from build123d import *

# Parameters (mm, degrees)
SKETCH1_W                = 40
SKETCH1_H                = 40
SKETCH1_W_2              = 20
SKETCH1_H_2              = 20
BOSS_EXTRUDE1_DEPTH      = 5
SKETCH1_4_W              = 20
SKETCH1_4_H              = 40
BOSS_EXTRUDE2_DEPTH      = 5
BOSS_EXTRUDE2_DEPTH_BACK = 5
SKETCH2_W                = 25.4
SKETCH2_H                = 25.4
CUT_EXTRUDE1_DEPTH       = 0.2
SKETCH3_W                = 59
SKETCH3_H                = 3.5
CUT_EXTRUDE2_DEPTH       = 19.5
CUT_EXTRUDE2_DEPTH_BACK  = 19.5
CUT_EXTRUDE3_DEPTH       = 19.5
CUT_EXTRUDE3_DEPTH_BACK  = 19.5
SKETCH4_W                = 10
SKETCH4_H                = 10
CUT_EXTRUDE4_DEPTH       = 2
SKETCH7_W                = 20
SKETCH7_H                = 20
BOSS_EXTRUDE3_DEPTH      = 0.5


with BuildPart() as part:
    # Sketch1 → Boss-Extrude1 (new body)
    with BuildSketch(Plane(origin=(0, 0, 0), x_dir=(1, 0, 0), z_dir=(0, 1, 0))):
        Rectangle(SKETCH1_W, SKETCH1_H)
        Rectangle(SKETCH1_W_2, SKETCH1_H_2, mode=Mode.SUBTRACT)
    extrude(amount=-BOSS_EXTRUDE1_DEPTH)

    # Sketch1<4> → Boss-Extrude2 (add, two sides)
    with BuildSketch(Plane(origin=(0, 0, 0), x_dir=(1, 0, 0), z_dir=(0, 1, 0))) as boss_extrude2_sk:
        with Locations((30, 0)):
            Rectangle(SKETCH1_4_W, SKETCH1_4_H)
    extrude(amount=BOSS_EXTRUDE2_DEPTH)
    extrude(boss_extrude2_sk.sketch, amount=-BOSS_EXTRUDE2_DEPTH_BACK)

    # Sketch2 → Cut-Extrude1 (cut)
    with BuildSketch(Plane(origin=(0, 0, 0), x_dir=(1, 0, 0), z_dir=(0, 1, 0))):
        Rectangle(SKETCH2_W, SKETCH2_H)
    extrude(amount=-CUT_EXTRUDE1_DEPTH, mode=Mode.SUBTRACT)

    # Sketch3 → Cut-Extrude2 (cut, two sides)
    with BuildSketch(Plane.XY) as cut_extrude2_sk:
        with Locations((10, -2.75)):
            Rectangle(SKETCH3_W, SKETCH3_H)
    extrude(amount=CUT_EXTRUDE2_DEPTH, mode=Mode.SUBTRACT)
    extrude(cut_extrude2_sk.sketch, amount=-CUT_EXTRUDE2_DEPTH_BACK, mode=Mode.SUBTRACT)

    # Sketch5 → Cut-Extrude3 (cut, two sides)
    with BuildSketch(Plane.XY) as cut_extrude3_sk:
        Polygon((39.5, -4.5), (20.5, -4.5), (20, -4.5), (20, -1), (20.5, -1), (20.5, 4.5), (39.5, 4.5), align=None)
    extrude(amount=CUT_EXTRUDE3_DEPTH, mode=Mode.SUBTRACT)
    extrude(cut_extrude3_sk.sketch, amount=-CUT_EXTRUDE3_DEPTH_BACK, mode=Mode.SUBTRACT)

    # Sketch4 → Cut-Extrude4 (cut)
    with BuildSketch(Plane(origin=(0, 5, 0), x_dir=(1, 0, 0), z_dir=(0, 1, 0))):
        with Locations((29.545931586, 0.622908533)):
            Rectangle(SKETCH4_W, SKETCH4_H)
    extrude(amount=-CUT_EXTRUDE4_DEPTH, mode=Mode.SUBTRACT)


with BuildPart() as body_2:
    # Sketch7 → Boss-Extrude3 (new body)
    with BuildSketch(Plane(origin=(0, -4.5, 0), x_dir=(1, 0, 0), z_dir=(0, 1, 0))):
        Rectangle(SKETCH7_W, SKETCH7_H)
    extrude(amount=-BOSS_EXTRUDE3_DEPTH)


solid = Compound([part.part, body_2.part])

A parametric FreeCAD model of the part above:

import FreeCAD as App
import Part
import Sketcher


def add_polygon(sketch, points):
    """Adds a closed chain of lines whose ends are joined by coincident constraints."""
    first, n = sketch.GeometryCount, len(points)
    for a, b in zip(points, points[1:] + points[:1]):
        sketch.addGeometry(Part.LineSegment(App.Vector(*a, 0), App.Vector(*b, 0)), False)
    for i in range(n):
        sketch.addConstraint(Sketcher.Constraint("Coincident", first + i, 2, first + (i + 1) % n, 1))

doc = App.newDocument("Part")
body = doc.addObject("PartDesign::Body", "Body")

sketch1 = body.newObject("Sketcher::SketchObject", "Sketch")
sketch1.AttachmentSupport = (doc.getObject("XZ_Plane"), [""])
sketch1.MapMode = "FlatFace"
add_polygon(sketch1, [(-20, -20), (-20, 20), (20, 20), (20, -20)])
add_polygon(sketch1, [(10, 10), (-10, 10), (-10, -10), (10, -10)])
sketch1.addConstraint(Sketcher.Constraint("Vertical", 0))
sketch1.addConstraint(Sketcher.Constraint("Horizontal", 1))
sketch1.addConstraint(Sketcher.Constraint("Vertical", 2))
sketch1.addConstraint(Sketcher.Constraint("Horizontal", 3))
sketch1.addConstraint(Sketcher.Constraint("Horizontal", 4))
sketch1.addConstraint(Sketcher.Constraint("Vertical", 5))
sketch1.addConstraint(Sketcher.Constraint("Horizontal", 6))
sketch1.addConstraint(Sketcher.Constraint("Vertical", 7))
sketch1.addConstraint(Sketcher.Constraint("Symmetric", 0, 2, 2, 2, -1, 1))
sketch1.addConstraint(Sketcher.Constraint("Symmetric", 4, 2, 6, 2, -1, 1))
sketch1.addConstraint(Sketcher.Constraint("Equal", 3, 0))
sketch1.addConstraint(Sketcher.Constraint("Equal", 6, 5))
sketch1.addConstraint(Sketcher.Constraint("DistanceX", 1, 1, 1, 2, 40.0))
sketch1.addConstraint(Sketcher.Constraint("DistanceX", 4, 2, 4, 1, 20.0))
pad1 = body.newObject("PartDesign::Pad", "Pad")
pad1.Profile = sketch1
pad1.Length = 5

sketch2 = body.newObject("Sketcher::SketchObject", "Sketch001")
sketch2.AttachmentSupport = (doc.getObject("XZ_Plane"), [""])
sketch2.MapMode = "FlatFace"
add_polygon(sketch2, [(20, -20), (20, 20), (40, 20), (40, -20)])
sketch2.addConstraint(Sketcher.Constraint("Vertical", 0))
sketch2.addConstraint(Sketcher.Constraint("Horizontal", 1))
sketch2.addConstraint(Sketcher.Constraint("Vertical", 2))
sketch2.addConstraint(Sketcher.Constraint("Horizontal", 3))
sketch2.addConstraint(Sketcher.Constraint("DistanceX", 1, 1, 1, 2, 20.0))
sketch2.addConstraint(Sketcher.Constraint("DistanceY", 0, 1, 0, 2, 40.0))
sketch2.addConstraint(Sketcher.Constraint("DistanceX", -1, 1, 0, 2, 20.0))
sketch2.addConstraint(Sketcher.Constraint("DistanceY", -1, 1, 0, 2, 20.0))
pad2 = body.newObject("PartDesign::Pad", "Pad001")
pad2.Profile = sketch2
pad2.Type = "TwoLengths"
pad2.Length = 5
pad2.Length2 = 5
pad2.Reversed = True

sketch3 = body.newObject("Sketcher::SketchObject", "Sketch002")
sketch3.AttachmentSupport = (doc.getObject("XZ_Plane"), [""])
sketch3.MapMode = "FlatFace"
add_polygon(sketch3, [(-12.7, -12.7), (-12.7, 12.7), (12.7, 12.7), (12.7, -12.7)])
sketch3.addConstraint(Sketcher.Constraint("Vertical", 0))
sketch3.addConstraint(Sketcher.Constraint("Horizontal", 1))
sketch3.addConstraint(Sketcher.Constraint("Vertical", 2))
sketch3.addConstraint(Sketcher.Constraint("Horizontal", 3))
sketch3.addConstraint(Sketcher.Constraint("Symmetric", 0, 2, 2, 2, -1, 1))
sketch3.addConstraint(Sketcher.Constraint("Equal", 3, 0))
sketch3.addConstraint(Sketcher.Constraint("DistanceX", 1, 1, 1, 2, 25.4))
pocket1 = body.newObject("PartDesign::Pocket", "Pocket")
pocket1.Profile = sketch3
pocket1.Length = 0.2
pocket1.Reversed = True

sketch4 = body.newObject("Sketcher::SketchObject", "Sketch003")
sketch4.AttachmentSupport = (doc.getObject("XY_Plane"), [""])
sketch4.MapMode = "FlatFace"
add_polygon(sketch4, [(-19.5, -1), (-19.5, -4.5), (39.5, -4.5), (39.5, -1)])
sketch4.addConstraint(Sketcher.Constraint("Vertical", 0))
sketch4.addConstraint(Sketcher.Constraint("Horizontal", 1))
sketch4.addConstraint(Sketcher.Constraint("Vertical", 2))
sketch4.addConstraint(Sketcher.Constraint("Horizontal", 3))
sketch4.addConstraint(Sketcher.Constraint("DistanceX", 1, 1, 1, 2, 59.0))
sketch4.addConstraint(Sketcher.Constraint("DistanceY", 0, 2, 0, 1, 3.5))
sketch4.addConstraint(Sketcher.Constraint("DistanceY", 2, 2, -1, 1, 1.0))
sketch4.addConstraint(Sketcher.Constraint("DistanceX", 0, 2, -1, 1, 19.5))
pocket2 = body.newObject("PartDesign::Pocket", "Pocket001")
pocket2.Profile = sketch4
pocket2.Type = "TwoLengths"
pocket2.Length = 19.5
pocket2.Length2 = 19.5
pocket2.Reversed = True

sketch5 = body.newObject("Sketcher::SketchObject", "Sketch004")
sketch5.AttachmentSupport = (doc.getObject("XY_Plane"), [""])
sketch5.MapMode = "FlatFace"
add_polygon(sketch5, [(20, -4.5), (39.5, -4.5), (39.5, 4.5), (20.5, 4.5), (20.5, -1), (20, -1)])
sketch5.addConstraint(Sketcher.Constraint("Horizontal", 0))
sketch5.addConstraint(Sketcher.Constraint("Vertical", 1))
sketch5.addConstraint(Sketcher.Constraint("Horizontal", 2))
sketch5.addConstraint(Sketcher.Constraint("Vertical", 3))
sketch5.addConstraint(Sketcher.Constraint("Horizontal", 4))
sketch5.addConstraint(Sketcher.Constraint("Vertical", 5))
sketch5.addConstraint(Sketcher.Constraint("DistanceX", 2, 2, 2, 1, 19.0))
sketch5.addConstraint(Sketcher.Constraint("DistanceY", 1, 1, 1, 2, 9.0))
sketch5.addConstraint(Sketcher.Constraint("DistanceX", 0, 1, 0, 2, 19.5))
sketch5.addConstraint(Sketcher.Constraint("DistanceY", 3, 2, 3, 1, 5.5))
sketch5.addConstraint(Sketcher.Constraint("DistanceY", 3, 2, -1, 1, 1.0))
sketch5.addConstraint(Sketcher.Constraint("DistanceX", -1, 1, 4, 2, 20.0))
pocket3 = body.newObject("PartDesign::Pocket", "Pocket002")
pocket3.Profile = sketch5
pocket3.Type = "TwoLengths"
pocket3.Length = 19.5
pocket3.Length2 = 19.5
pocket3.Reversed = True

sketch6 = body.newObject("Sketcher::SketchObject", "Sketch005")
sketch6.AttachmentSupport = (doc.getObject("XZ_Plane"), [""])
sketch6.MapMode = "FlatFace"
sketch6.AttachmentOffset = App.Placement(App.Vector(0, 0, -5), App.Rotation())
add_polygon(sketch6, [(24.545932, -5.622909), (24.545932, 4.377091), (34.545932, 4.377091), (34.545932, -5.622909)])
sketch6.addConstraint(Sketcher.Constraint("Vertical", 0))
sketch6.addConstraint(Sketcher.Constraint("Horizontal", 1))
sketch6.addConstraint(Sketcher.Constraint("Vertical", 2))
sketch6.addConstraint(Sketcher.Constraint("Horizontal", 3))
sketch6.addConstraint(Sketcher.Constraint("Equal", 3, 0))
sketch6.addConstraint(Sketcher.Constraint("DistanceX", 1, 1, 1, 2, 10.0))
sketch6.addConstraint(Sketcher.Constraint("DistanceX", -1, 1, 0, 2, 24.545932))
sketch6.addConstraint(Sketcher.Constraint("DistanceY", -1, 1, 0, 2, 4.377091))
pocket4 = body.newObject("PartDesign::Pocket", "Pocket003")
pocket4.Profile = sketch6
pocket4.Length = 2
pocket4.Reversed = True
body2 = doc.addObject("PartDesign::Body", "Body001")

sketch7 = body2.newObject("Sketcher::SketchObject", "Sketch006")
sketch7.AttachmentSupport = (doc.getObject("XZ_Plane001"), [""])
sketch7.MapMode = "FlatFace"
sketch7.AttachmentOffset = App.Placement(App.Vector(0, 0, 4.5), App.Rotation())
add_polygon(sketch7, [(-10, -10), (-10, 10), (10, 10), (10, -10)])
sketch7.addConstraint(Sketcher.Constraint("Vertical", 0))
sketch7.addConstraint(Sketcher.Constraint("Horizontal", 1))
sketch7.addConstraint(Sketcher.Constraint("Vertical", 2))
sketch7.addConstraint(Sketcher.Constraint("Horizontal", 3))
sketch7.addConstraint(Sketcher.Constraint("Symmetric", 0, 2, 2, 2, -1, 1))
sketch7.addConstraint(Sketcher.Constraint("Equal", 3, 0))
sketch7.addConstraint(Sketcher.Constraint("DistanceX", 1, 1, 1, 2, 20.0))
pad3 = body2.newObject("PartDesign::Pad", "Pad002")
pad3.Profile = sketch7
pad3.Length = 0.5

doc.recompute()
